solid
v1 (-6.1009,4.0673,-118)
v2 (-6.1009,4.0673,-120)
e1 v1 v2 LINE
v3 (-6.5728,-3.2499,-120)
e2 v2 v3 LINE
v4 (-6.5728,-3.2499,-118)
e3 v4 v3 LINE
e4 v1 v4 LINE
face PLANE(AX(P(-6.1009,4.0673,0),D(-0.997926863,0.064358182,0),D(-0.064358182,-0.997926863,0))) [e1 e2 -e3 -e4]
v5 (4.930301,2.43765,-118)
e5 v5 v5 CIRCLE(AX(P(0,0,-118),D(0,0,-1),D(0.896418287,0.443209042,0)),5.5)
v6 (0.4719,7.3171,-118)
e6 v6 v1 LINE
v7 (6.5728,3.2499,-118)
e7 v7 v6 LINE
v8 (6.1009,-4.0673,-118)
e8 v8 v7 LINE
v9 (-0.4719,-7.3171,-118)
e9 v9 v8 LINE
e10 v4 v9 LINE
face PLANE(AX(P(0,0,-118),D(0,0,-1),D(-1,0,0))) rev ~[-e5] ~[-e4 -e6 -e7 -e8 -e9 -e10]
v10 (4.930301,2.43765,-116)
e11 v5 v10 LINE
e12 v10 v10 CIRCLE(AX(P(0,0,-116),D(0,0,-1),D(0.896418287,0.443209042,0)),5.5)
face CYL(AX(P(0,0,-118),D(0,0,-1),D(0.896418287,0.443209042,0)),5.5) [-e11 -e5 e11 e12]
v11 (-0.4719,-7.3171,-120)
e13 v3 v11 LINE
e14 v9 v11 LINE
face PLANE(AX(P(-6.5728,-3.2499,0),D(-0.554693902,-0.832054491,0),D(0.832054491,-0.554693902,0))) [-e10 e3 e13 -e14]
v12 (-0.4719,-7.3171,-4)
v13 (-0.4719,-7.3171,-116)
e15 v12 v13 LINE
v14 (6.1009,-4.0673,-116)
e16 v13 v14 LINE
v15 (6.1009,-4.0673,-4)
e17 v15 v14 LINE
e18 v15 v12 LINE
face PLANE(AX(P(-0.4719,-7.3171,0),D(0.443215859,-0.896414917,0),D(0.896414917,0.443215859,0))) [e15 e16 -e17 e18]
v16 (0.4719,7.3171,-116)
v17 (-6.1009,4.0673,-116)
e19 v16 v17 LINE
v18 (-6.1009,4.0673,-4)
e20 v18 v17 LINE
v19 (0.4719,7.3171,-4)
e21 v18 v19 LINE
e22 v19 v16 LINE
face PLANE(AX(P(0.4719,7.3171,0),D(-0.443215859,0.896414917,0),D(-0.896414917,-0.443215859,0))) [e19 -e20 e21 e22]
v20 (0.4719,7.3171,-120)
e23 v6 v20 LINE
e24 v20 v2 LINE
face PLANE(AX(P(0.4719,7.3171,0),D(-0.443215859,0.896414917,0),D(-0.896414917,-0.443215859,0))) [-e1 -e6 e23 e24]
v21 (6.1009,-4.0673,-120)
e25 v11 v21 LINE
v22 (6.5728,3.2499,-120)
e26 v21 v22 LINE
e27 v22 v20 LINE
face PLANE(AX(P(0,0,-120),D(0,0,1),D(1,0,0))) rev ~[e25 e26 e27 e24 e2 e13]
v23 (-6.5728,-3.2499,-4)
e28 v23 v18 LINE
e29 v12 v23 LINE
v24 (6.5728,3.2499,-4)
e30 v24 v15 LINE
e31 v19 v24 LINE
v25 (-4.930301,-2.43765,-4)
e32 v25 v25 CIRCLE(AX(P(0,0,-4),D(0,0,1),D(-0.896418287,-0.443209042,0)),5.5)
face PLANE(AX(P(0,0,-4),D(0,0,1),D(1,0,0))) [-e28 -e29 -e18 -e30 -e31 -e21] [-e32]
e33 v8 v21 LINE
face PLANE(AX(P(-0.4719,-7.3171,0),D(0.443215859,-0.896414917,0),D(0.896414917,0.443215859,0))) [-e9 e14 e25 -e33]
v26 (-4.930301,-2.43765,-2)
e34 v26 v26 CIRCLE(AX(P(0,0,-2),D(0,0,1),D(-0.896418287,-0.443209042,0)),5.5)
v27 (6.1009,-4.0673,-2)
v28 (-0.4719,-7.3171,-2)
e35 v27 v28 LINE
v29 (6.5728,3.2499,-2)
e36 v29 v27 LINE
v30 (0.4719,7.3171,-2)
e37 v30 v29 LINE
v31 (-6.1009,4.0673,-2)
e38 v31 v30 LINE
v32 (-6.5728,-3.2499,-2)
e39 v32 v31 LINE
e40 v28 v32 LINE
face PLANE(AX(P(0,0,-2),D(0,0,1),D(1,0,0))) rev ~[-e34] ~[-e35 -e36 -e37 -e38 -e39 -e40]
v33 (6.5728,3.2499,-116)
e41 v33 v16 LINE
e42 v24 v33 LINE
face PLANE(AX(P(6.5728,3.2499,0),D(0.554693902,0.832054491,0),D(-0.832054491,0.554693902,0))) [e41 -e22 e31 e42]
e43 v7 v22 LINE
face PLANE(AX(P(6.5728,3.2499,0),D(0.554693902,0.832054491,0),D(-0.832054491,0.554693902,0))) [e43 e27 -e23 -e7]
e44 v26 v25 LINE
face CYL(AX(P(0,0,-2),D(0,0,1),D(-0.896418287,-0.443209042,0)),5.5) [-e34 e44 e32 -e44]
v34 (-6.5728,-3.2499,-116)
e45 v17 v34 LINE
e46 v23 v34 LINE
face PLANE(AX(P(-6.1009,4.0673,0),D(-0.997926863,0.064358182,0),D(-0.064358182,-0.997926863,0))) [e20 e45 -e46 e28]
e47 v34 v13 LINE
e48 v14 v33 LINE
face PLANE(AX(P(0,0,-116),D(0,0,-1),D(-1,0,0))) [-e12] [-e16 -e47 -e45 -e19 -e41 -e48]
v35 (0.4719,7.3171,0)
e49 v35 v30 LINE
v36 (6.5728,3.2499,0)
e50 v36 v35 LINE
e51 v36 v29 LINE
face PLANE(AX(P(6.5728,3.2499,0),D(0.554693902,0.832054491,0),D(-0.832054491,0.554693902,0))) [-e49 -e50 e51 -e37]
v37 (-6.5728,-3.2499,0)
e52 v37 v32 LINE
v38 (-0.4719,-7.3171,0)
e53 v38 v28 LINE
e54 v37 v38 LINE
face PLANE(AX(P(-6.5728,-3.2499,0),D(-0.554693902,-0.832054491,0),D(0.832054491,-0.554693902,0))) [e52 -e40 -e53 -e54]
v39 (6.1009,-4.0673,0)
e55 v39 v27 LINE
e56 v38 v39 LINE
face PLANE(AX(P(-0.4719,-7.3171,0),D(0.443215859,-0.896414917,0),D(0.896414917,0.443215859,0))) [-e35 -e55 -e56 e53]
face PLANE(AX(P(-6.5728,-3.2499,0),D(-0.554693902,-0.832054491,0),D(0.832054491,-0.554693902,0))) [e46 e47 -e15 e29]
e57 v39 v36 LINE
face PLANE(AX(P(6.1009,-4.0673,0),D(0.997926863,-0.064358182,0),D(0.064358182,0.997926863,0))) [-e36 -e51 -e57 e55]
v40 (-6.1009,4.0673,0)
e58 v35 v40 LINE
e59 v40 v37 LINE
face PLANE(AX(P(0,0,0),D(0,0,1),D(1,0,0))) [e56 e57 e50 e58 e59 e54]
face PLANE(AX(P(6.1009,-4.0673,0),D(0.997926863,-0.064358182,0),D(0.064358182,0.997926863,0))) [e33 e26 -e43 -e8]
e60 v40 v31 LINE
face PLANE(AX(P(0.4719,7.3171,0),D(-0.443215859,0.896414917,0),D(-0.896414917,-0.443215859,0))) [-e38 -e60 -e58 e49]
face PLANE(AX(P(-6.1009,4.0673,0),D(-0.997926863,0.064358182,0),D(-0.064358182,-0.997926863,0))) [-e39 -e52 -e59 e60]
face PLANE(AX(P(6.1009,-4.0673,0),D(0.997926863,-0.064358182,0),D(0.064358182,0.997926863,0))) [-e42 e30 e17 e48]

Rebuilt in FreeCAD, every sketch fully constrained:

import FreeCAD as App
import Part
import Sketcher
from FreeCAD import Vector
Q = App.Units.Quantity

doc = App.newDocument("Part")
body = doc.addObject("PartDesign::Body", "Body")

sketch1 = body.newObject("Sketcher::SketchObject", "Sketch")
sketch1.AttachmentSupport = (doc.getObject("XY_Plane"), [""])
sketch1.MapMode = "FlatFace"
sketch1.addGeometry(Part.LineSegment(Vector(0.4719, 7.3171, 0), Vector(-6.1009, 4.0673, 0)), False)
sketch1.addGeometry(Part.LineSegment(Vector(-6.1009, 4.0673, 0), Vector(-6.5728, -3.2499, 0)), False)
sketch1.addGeometry(Part.LineSegment(Vector(-6.5728, -3.2499, 0), Vector(-0.4719, -7.3171, 0)), False)
sketch1.addGeometry(Part.LineSegment(Vector(-0.4719, -7.3171, 0), Vector(6.1009, -4.0673, 0)), False)
sketch1.addGeometry(Part.LineSegment(Vector(6.1009, -4.0673, 0), Vector(6.5728, 3.2499, 0)), False)
sketch1.addGeometry(Part.LineSegment(Vector(6.5728, 3.2499, 0), Vector(0.4719, 7.3171, 0)), False)
sketch1.addConstraint(Sketcher.Constraint("Coincident", 0, 2, 1, 1))
sketch1.addConstraint(Sketcher.Constraint("Coincident", 1, 2, 2, 1))
sketch1.addConstraint(Sketcher.Constraint("Coincident", 2, 2, 3, 1))
sketch1.addConstraint(Sketcher.Constraint("Coincident", 3, 2, 4, 1))
sketch1.addConstraint(Sketcher.Constraint("Coincident", 4, 2, 5, 1))
sketch1.addConstraint(Sketcher.Constraint("Coincident", 5, 2, 0, 1))
sketch1.addConstraint(Sketcher.Constraint("Symmetric", 0, 2, 3, 2, -1, 1))
sketch1.addConstraint(Sketcher.Constraint("Symmetric", 1, 2, 4, 2, -1, 1))
sketch1.addConstraint(Sketcher.Constraint("Symmetric", 2, 2, 5, 2, -1, 1))
sketch1.addConstraint(Sketcher.Constraint("Equal", 0, 1))
sketch1.addConstraint(Sketcher.Constraint("Equal", 1, 2))
sketch1.addConstraint(Sketcher.Constraint("Angle", 0, Q("-153.6908 deg")))
sketch1.addConstraint(Sketcher.Constraint("Angle", 1, Q("-93.69 deg")))
sketch1.addConstraint(Sketcher.Constraint("Angle", 2, Q("-33.6896 deg")))
sketch1.addConstraint(Sketcher.Constraint("DistanceY", 1, 2, -1, 1, 3.25))
pad1 = body.newObject("PartDesign::Pad", "Pad")
pad1.Profile = sketch1
pad1.Length = 120
pad1.Reversed = True

sketch2 = body.newObject("Sketcher::SketchObject", "Sketch001")
sketch2.AttachmentSupport = (doc.getObject("XY_Plane"), [""])
sketch2.MapMode = "FlatFace"
sketch2.AttachmentOffset = App.Placement(Vector(0, 0, -2), App.Rotation())
sketch2.addGeometry(Part.Circle(Vector(0, 0, 0), Vector(0, 0, 1), 13.1424), False)
sketch2.addGeometry(Part.Circle(Vector(0, 0, 0), Vector(0, 0, 1), 5.5), False)
sketch2.addConstraint(Sketcher.Constraint("Coincident", 0, 3, -1, 1))
sketch2.addConstraint(Sketcher.Constraint("Coincident", 1, 3, -1, 1))
sketch2.addConstraint(Sketcher.Constraint("Diameter", 1, 11.0))
sketch2.addConstraint(Sketcher.Constraint("Diameter", 0, 26.2848))
pocket1 = body.newObject("PartDesign::Pocket", "Pocket")
pocket1.Profile = sketch2
pocket1.Length = 2

sketch3 = body.newObject("Sketcher::SketchObject", "Sketch002")
sketch3.AttachmentSupport = (doc.getObject("XY_Plane"), [""])
sketch3.MapMode = "FlatFace"
sketch3.AttachmentOffset = App.Placement(Vector(0, 0, -118), App.Rotation())
sketch3.addGeometry(Part.Circle(Vector(0, 0, 0), Vector(0, 0, 1), 13.1424), False)
sketch3.addGeometry(Part.Circle(Vector(0, 0, 0), Vector(0, 0, 1), 5.5), False)
sketch3.addConstraint(Sketcher.Constraint("Coincident", 0, 3, -1, 1))
sketch3.addConstraint(Sketcher.Constraint("Coincident", 1, 3, -1, 1))
sketch3.addConstraint(Sketcher.Constraint("Diameter", 1, 11.0))
sketch3.addConstraint(Sketcher.Constraint("Diameter", 0, 26.2848))
pocket2 = body.newObject("PartDesign::Pocket", "Pocket001")
pocket2.Profile = sketch3
pocket2.Length = 2
pocket2.Reversed = True

doc.recompute()
